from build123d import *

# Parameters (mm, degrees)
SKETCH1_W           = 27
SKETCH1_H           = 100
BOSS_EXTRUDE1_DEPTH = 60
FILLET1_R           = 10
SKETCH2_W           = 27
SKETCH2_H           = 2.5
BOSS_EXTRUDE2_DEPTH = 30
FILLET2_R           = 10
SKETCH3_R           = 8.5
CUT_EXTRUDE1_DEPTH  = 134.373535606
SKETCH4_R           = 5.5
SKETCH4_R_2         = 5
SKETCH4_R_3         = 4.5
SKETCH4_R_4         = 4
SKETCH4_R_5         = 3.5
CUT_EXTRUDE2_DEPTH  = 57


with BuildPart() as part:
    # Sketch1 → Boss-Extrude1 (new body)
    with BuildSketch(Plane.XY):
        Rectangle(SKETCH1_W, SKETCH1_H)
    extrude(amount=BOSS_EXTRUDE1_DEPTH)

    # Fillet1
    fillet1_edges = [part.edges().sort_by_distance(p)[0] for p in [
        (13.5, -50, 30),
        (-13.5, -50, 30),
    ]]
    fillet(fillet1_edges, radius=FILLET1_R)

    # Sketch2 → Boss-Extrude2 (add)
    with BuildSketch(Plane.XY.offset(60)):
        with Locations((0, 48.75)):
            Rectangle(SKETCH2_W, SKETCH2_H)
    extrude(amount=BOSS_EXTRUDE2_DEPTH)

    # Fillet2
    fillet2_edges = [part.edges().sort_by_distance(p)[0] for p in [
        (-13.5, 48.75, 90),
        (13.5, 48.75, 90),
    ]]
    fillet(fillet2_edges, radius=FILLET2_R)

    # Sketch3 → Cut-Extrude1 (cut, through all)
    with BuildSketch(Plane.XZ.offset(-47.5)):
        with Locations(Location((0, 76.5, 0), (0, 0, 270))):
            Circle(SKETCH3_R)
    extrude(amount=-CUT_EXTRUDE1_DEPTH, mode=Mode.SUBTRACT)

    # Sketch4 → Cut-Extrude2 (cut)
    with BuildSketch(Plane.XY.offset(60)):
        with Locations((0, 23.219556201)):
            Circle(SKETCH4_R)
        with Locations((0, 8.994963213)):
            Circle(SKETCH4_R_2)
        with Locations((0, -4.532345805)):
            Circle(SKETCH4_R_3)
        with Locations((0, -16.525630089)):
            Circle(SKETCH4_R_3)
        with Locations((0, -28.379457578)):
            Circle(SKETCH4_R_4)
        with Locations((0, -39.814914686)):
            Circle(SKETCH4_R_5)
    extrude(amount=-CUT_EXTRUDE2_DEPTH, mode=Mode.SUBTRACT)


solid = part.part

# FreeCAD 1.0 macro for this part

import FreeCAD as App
import Part
import Sketcher
from FreeCAD import Vector
Q = App.Units.Quantity


def edges_at(feature, points):
    """Names of the edges that pass closest to the given points."""
    edges = feature.Shape.Edges
    near = lambda p: min(range(len(edges)), key=lambda i: edges[i].distToShape(Part.Vertex(*p))[0])
    return sorted({f"Edge{near(p) + 1}" for p in points})


def add_polygon(sketch, points):
    """Adds a closed chain of lines whose ends are joined by coincident constraints."""
    first, n = sketch.GeometryCount, len(points)
    for a, b in zip(points, points[1:] + points[:1]):
        sketch.addGeometry(Part.LineSegment(App.Vector(*a, 0), App.Vector(*b, 0)), False)
    for i in range(n):
        sketch.addConstraint(Sketcher.Constraint("Coincident", first + i, 2, first + (i + 1) % n, 1))

doc = App.newDocument("Part")
params = doc.addObject("Spreadsheet::Sheet", "Params")
for row, (alias, value) in enumerate([
    ("sketch1_width", "27 mm"),
    ("sketch1_height", "100 mm"),
    ("pad1_length", "60 mm"),
    ("fillet_radius", "10 mm"),
    ("sketch2_width", "27 mm"),
    ("sketch2_height", "2.5 mm"),
    ("pad2_length", "30 mm"),
    ("fillet2_radius", "10 mm"),
    ("sketch3_diameter", "17 mm"),
    ("sketch4_diameter", "11 mm"),
    ("sketch4_diameter2", "10 mm"),
    ("sketch4_diameter3", "9 mm"),
    ("sketch4_diameter4", "8 mm"),
    ("sketch4_diameter5", "7 mm"),
    ("pocket2_length", "57 mm"),
], start=1):
    params.set(f"A{row}", alias)
    params.set(f"B{row}", "=" + value)
    params.setAlias(f"B{row}", alias)

body = doc.addObject("PartDesign::Body", "Body")

# Sketch on XY plane
sketch1 = body.newObject("Sketcher::SketchObject", "Sketch")
sketch1.AttachmentSupport = (doc.getObject("XY_Plane"), [""])
sketch1.MapMode = "FlatFace"
add_polygon(sketch1, [(-14, 50), (-14, -50), (14, -50), (14, 50)])  # lines 0-3
sketch1.addConstraint(Sketcher.Constraint("Vertical", 0))
sketch1.addConstraint(Sketcher.Constraint("Horizontal", 1))
sketch1.addConstraint(Sketcher.Constraint("Vertical", 2))
sketch1.addConstraint(Sketcher.Constraint("Horizontal", 3))
sketch1.addConstraint(Sketcher.Constraint("Symmetric", 0, 2, 2, 2, -1, 1))
sketch1.addConstraint(Sketcher.Constraint("DistanceX", 1, 1, 1, 2, Q("27 mm")))
sketch1.addConstraint(Sketcher.Constraint("DistanceY", 0, 2, 0, 1, Q("100 mm")))
sketch1.setExpression("Constraints[9]", "Params.sketch1_width")
sketch1.setExpression("Constraints[10]", "Params.sketch1_height")
pad1 = body.newObject("PartDesign::Pad", "Pad")
pad1.Profile = sketch1
pad1.setExpression("Length", "Params.pad1_length")
doc.recompute()

fillet = body.newObject("PartDesign::Fillet", "Fillet")
fillet.Base = (pad1, edges_at(pad1, [(13.5, -50, 30), (-13.5, -50, 30)]))
fillet.setExpression("Radius", "Params.fillet_radius")

# Sketch on XY plane
sketch2 = body.newObject("Sketcher::SketchObject", "Sketch001")
sketch2.AttachmentSupport = (doc.getObject("XY_Plane"), [""])
sketch2.MapMode = "FlatFace"
sketch2.AttachmentOffset = App.Placement(Vector(0, 0, 60), App.Rotation())
add_polygon(sketch2, [(-13.5, 50), (-13.5, 47.5), (13.5, 47.5), (13.5, 50)])  # lines 0-3
sketch2.addConstraint(Sketcher.Constraint("Vertical", 0))
sketch2.addConstraint(Sketcher.Constraint("Horizontal", 1))
sketch2.addConstraint(Sketcher.Constraint("Vertical", 2))
sketch2.addConstraint(Sketcher.Constraint("Horizontal", 3))
sketch2.addConstraint(Sketcher.Constraint("DistanceX", 1, 1, 1, 2, Q("27 mm")))
sketch2.addConstraint(Sketcher.Constraint("DistanceY", 0, 2, 0, 1, Q("2.5 mm")))
sketch2.addConstraint(Sketcher.Constraint("DistanceY", -1, 1, 2, 2, Q("50 mm")))
sketch2.addConstraint(Sketcher.Constraint("DistanceX", 0, 2, -1, 1, Q("13.5 mm")))
sketch2.setExpression("Constraints[8]", "Params.sketch2_width")
sketch2.setExpression("Constraints[9]", "Params.sketch2_height")
pad2 = body.newObject("PartDesign::Pad", "Pad001")
pad2.Profile = sketch2
pad2.setExpression("Length", "Params.pad2_length")
doc.recompute()

fillet2 = body.newObject("PartDesign::Fillet", "Fillet001")
fillet2.Base = (pad2, edges_at(pad2, [(-13.5, 48.75, 90), (13.5, 48.75, 90)]))
fillet2.setExpression("Radius", "Params.fillet2_radius")

# Sketch on XZ plane
sketch3 = body.newObject("Sketcher::SketchObject", "Sketch002")
sketch3.AttachmentSupport = (doc.getObject("XZ_Plane"), [""])
sketch3.MapMode = "FlatFace"
sketch3.AttachmentOffset = App.Placement(Vector(0, 0, -47.5), App.Rotation())
sketch3.addGeometry(Part.Circle(Vector(0, 76, 0), Vector(0, 0, 1), 8), False)
sketch3.addConstraint(Sketcher.Constraint("PointOnObject", 0, 3, -2))
sketch3.addConstraint(Sketcher.Constraint("Diameter", 0, Q("17 mm")))
sketch3.addConstraint(Sketcher.Constraint("DistanceY", -1, 1, 0, 3, Q("76.5 mm")))
sketch3.setExpression("Constraints[1]", "Params.sketch3_diameter")
pocket1 = body.newObject("PartDesign::Pocket", "Pocket")
pocket1.Profile = sketch3
pocket1.Type = "ThroughAll"

# Sketch on XY plane
sketch4 = body.newObject("Sketcher::SketchObject", "Sketch003")
sketch4.AttachmentSupport = (doc.getObject("XY_Plane"), [""])
sketch4.MapMode = "FlatFace"
sketch4.AttachmentOffset = App.Placement(Vector(0, 0, 60), App.Rotation())
sketch4.addGeometry(Part.Circle(Vector(0, 23.2, 0), Vector(0, 0, 1), 5.5), False)
sketch4.addGeometry(Part.Circle(Vector(0, 9, 0), Vector(0, 0, 1), 5), False)
sketch4.addGeometry(Part.Circle(Vector(0, -4.5, 0), Vector(0, 0, 1), 4.5), False)
sketch4.addGeometry(Part.Circle(Vector(0, -16.5, 0), Vector(0, 0, 1), 4.5), False)
sketch4.addGeometry(Part.Circle(Vector(0, -28.4, 0), Vector(0, 0, 1), 4), False)
sketch4.addGeometry(Part.Circle(Vector(0, -39.8, 0), Vector(0, 0, 1), 3.5), False)
sketch4.addConstraint(Sketcher.Constraint("Equal", 2, 3))
sketch4.addConstraint(Sketcher.Constraint("PointOnObject", 0, 3, -2))
sketch4.addConstraint(Sketcher.Constraint("PointOnObject", 1, 3, -2))
sketch4.addConstraint(Sketcher.Constraint("PointOnObject", 2, 3, -2))
sketch4.addConstraint(Sketcher.Constraint("PointOnObject", 3, 3, -2))
sketch4.addConstraint(Sketcher.Constraint("PointOnObject", 4, 3, -2))
sketch4.addConstraint(Sketcher.Constraint("PointOnObject", 5, 3, -2))
sketch4.addConstraint(Sketcher.Constraint("Diameter", 0, Q("11 mm")))
sketch4.addConstraint(Sketcher.Constraint("Diameter", 1, Q("10 mm")))
sketch4.addConstraint(Sketcher.Constraint("Diameter", 2, Q("9 mm")))
sketch4.addConstraint(Sketcher.Constraint("Diameter", 4, Q("8 mm")))
sketch4.addConstraint(Sketcher.Constraint("Diameter", 5, Q("7 mm")))
sketch4.addConstraint(Sketcher.Constraint("DistanceY", 3, 3, -1, 1, Q("16.52563 mm")))
sketch4.addConstraint(Sketcher.Constraint("DistanceY", 2, 3, 1, 3, Q("13.527309 mm")))
sketch4.addConstraint(Sketcher.Constraint("DistanceY", 4, 3, 2, 3, Q("23.847112 mm")))
sketch4.addConstraint(Sketcher.Constraint("DistanceY", 5, 3, 2, 3, Q("35.282569 mm")))
sketch4.addConstraint(Sketcher.Constraint("DistanceY", 5, 3, 0, 3, Q("63.034471 mm")))
sketch4.addConstraint(Sketcher.Constraint("DistanceY", -1, 1, 0, 3, Q("23.219556 mm")))
sketch4.setExpression("Constraints[7]", "Params.sketch4_diameter")
sketch4.setExpression("Constraints[8]", "Params.sketch4_diameter2")
sketch4.setExpression("Constraints[9]", "Params.sketch4_diameter3")
sketch4.setExpression("Constraints[10]", "Params.sketch4_diameter4")
sketch4.setExpression("Constraints[11]", "Params.sketch4_diameter5")
pocket2 = body.newObject("PartDesign::Pocket", "Pocket001")
pocket2.Profile = sketch4
pocket2.setExpression("Length", "Params.pocket2_length")

doc.recompute()
